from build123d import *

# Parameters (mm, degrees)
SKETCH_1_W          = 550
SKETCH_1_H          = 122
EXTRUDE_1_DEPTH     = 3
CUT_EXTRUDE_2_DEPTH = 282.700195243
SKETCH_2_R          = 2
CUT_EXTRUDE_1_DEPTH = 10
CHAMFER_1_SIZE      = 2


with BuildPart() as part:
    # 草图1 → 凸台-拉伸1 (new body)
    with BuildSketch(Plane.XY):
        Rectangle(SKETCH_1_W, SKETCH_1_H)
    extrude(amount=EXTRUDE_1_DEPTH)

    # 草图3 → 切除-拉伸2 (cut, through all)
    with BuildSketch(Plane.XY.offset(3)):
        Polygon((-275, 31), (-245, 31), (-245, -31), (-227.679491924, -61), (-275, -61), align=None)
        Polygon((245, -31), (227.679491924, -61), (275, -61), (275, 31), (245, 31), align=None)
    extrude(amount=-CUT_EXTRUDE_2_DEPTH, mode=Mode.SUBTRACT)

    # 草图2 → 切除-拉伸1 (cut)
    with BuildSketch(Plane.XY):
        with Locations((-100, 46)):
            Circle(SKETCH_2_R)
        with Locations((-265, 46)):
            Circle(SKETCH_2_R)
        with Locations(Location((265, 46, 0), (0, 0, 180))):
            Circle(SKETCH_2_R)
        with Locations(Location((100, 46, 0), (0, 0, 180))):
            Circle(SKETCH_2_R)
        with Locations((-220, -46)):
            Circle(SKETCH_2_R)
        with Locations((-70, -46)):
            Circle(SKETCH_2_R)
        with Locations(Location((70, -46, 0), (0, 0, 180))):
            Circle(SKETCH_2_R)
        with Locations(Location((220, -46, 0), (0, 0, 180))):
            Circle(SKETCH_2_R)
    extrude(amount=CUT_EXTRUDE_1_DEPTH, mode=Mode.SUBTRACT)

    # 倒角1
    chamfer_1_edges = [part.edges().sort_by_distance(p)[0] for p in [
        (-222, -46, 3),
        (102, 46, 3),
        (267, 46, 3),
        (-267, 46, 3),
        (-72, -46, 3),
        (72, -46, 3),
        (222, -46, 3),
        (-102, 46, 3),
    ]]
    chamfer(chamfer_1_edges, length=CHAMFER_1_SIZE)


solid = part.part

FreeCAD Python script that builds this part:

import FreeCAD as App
import Part
import Sketcher
Q = App.Units.Quantity


def edges_at(feature, points):
    """Names of the edges that pass closest to the given points."""
    edges = feature.Shape.Edges
    near = lambda p: min(range(len(edges)), key=lambda i: edges[i].distToShape(Part.Vertex(*p))[0])
    return sorted({f"Edge{near(p) + 1}" for p in points})


def add_polygon(sketch, points):
    """Adds a closed chain of lines whose ends are joined by coincident constraints."""
    first, n = sketch.GeometryCount, len(points)
    for a, b in zip(points, points[1:] + points[:1]):
        sketch.addGeometry(Part.LineSegment(App.Vector(*a, 0), App.Vector(*b, 0)), False)
    for i in range(n):
        sketch.addConstraint(Sketcher.Constraint("Coincident", first + i, 2, first + (i + 1) % n, 1))

doc = App.newDocument("Part")
body = doc.addObject("PartDesign::Body", "Body")

sketch1 = body.newObject("Sketcher::SketchObject", "Sketch")
sketch1.AttachmentSupport = (doc.getObject("XY_Plane"), [""])
sketch1.MapMode = "FlatFace"
add_polygon(sketch1, [(-275, 61), (-275, -61), (275, -61), (275, 61)])
sketch1.addConstraint([
    Sketcher.Constraint("Vertical", 0),
    Sketcher.Constraint("Horizontal", 1),
    Sketcher.Constraint("Vertical", 2),
    Sketcher.Constraint("Horizontal", 3),
    Sketcher.Constraint("Symmetric", 0, 2, 2, 2, -1, 1),
    Sketcher.Constraint("DistanceX", 1, 1, 1, 2, 550.0),
    Sketcher.Constraint("DistanceY", 0, 2, 0, 1, 122.0),
])
pad1 = body.newObject("PartDesign::Pad", "Pad")
pad1.Profile = sketch1
pad1.Length = 3

sketch2 = body.newObject("Sketcher::SketchObject", "Sketch001")
sketch2.AttachmentSupport = (doc.getObject("XY_Plane"), [""])
sketch2.MapMode = "FlatFace"
sketch2.AttachmentOffset = App.Placement(App.Vector(0, 0, 3), App.Rotation())
add_polygon(sketch2, [(-245, 31), (-275, 31), (-275, -61), (-228, -61), (-245, -31)])
add_polygon(sketch2, [(245, -31), (228, -61), (275, -61), (275, 31), (245, 31)])
sketch2.addConstraint([
    Sketcher.Constraint("Horizontal", 0),
    Sketcher.Constraint("Vertical", 1),
    Sketcher.Constraint("Horizontal", 2),
    Sketcher.Constraint("Vertical", 4),
    Sketcher.Constraint("Horizontal", 6),
    Sketcher.Constraint("Vertical", 7),
    Sketcher.Constraint("Horizontal", 8),
    Sketcher.Constraint("Vertical", 9),
    Sketcher.Constraint("Symmetric", 3, 2, 8, 2, -1, 1),
    Sketcher.Constraint("Symmetric", 2, 2, 5, 2, -2),
    Sketcher.Constraint("Symmetric", 0, 2, 7, 2, -2),
    Sketcher.Constraint("Horizontal", 3, 2, 9, 2),
    Sketcher.Constraint("DistanceX", 0, 2, 0, 1, 30.0),
    Sketcher.Constraint("DistanceY", 1, 2, 1, 1, 92.0),
    Sketcher.Constraint("DistanceY", 4, 1, 4, 2, 62.0),
    Sketcher.Constraint("Angle", 3, Q("120 deg")),
    Sketcher.Constraint("DistanceX", 0, 2, -1, 1, 275.0),
])
pocket1 = body.newObject("PartDesign::Pocket", "Pocket")
pocket1.Profile = sketch2
pocket1.Type = "ThroughAll"

sketch3 = body.newObject("Sketcher::SketchObject", "Sketch002")
sketch3.AttachmentSupport = (doc.getObject("XY_Plane"), [""])
sketch3.MapMode = "FlatFace"
sketch3.addGeometry([
    Part.Circle(App.Vector(-100, 46, 0), App.Vector(0, 0, 1), 2),
    Part.Circle(App.Vector(-265, 46, 0), App.Vector(0, 0, 1), 2),
    Part.Circle(App.Vector(265, 46, 0), App.Vector(0, 0, 1), 2),
    Part.Circle(App.Vector(100, 46, 0), App.Vector(0, 0, 1), 2),
    Part.Circle(App.Vector(-220, -46, 0), App.Vector(0, 0, 1), 2),
    Part.Circle(App.Vector(-70, -46, 0), App.Vector(0, 0, 1), 2),
    Part.Circle(App.Vector(70, -46, 0), App.Vector(0, 0, 1), 2),
    Part.Circle(App.Vector(220, -46, 0), App.Vector(0, 0, 1), 2),
], False)
sketch3.addConstraint([
    Sketcher.Constraint("Equal", 0, 1),
    Sketcher.Constraint("Equal", 1, 2),
    Sketcher.Constraint("Equal", 2, 3),
    Sketcher.Constraint("Equal", 3, 4),
    Sketcher.Constraint("Equal", 4, 5),
    Sketcher.Constraint("Equal", 5, 6),
    Sketcher.Constraint("Equal", 6, 7),
    Sketcher.Constraint("Symmetric", 1, 3, 2, 3, -2),
    Sketcher.Constraint("Symmetric", 0, 3, 3, 3, -2),
    Sketcher.Constraint("Symmetric", 5, 3, 6, 3, -2),
    Sketcher.Constraint("Symmetric", 4, 3, 7, 3, -2),
    Sketcher.Constraint("Horizontal", 0, 3, 1, 3),
    Sketcher.Constraint("Horizontal", 4, 3, 5, 3),
    Sketcher.Constraint("Diameter", 0, 4.0),
    Sketcher.Constraint("DistanceX", 0, 3, -1, 1, 100.0),
    Sketcher.Constraint("DistanceY", -1, 1, 0, 3, 46.0),
    Sketcher.Constraint("DistanceX", 1, 3, -1, 1, 265.0),
    Sketcher.Constraint("DistanceX", 4, 3, -1, 1, 220.0),
    Sketcher.Constraint("DistanceY", 4, 3, -1, 1, 46.0),
    Sketcher.Constraint("DistanceX", 5, 3, -1, 1, 70.0),
])
pocket2 = body.newObject("PartDesign::Pocket", "Pocket001")
pocket2.Profile = sketch3
pocket2.Length = 10
pocket2.Reversed = True
doc.recompute()

chamfer = body.newObject("PartDesign::Chamfer", "Chamfer")
chamfer.Base = (pocket2, edges_at(pocket2, [
    (-222, -46, 3),
    (102, 46, 3),
    (267, 46, 3),
    (-267, 46, 3),
    (-72, -46, 3),
    (72, -46, 3),
    (222, -46, 3),
    (-102, 46, 3),
]))
chamfer.Size = 2

doc.recompute()
